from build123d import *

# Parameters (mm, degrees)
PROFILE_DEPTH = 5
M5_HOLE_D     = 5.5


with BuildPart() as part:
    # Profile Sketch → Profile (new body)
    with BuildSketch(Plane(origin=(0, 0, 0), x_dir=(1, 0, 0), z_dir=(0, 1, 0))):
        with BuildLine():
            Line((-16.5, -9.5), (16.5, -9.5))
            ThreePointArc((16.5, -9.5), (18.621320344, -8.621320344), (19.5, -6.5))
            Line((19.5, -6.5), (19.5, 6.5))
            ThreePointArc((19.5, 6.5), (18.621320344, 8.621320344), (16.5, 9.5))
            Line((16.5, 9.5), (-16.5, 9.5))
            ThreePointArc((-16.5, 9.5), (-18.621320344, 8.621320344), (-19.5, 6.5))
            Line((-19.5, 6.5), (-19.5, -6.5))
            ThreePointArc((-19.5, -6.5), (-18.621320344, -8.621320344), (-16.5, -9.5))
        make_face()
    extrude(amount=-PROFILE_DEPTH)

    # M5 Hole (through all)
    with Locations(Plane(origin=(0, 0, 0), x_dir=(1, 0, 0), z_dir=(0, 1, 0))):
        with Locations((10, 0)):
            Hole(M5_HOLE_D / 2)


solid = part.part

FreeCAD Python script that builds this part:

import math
import FreeCAD as App
import Part
import Sketcher

V = App.Vector

doc = App.newDocument("Part")
body = doc.addObject("PartDesign::Body", "Body")

sketch1 = doc.addObject("Sketcher::SketchObject", "Sketch")
body.addObject(sketch1)
sketch1.AttachmentSupport = (doc.XZ_Plane, [""])
sketch1.MapMode = "FlatFace"
sketch1.addGeometry(Part.LineSegment(V(-16.5, 9.5, 0), V(16.5, 9.5, 0)), False)
sketch1.addGeometry(Part.ArcOfCircle(Part.Circle(V(16.5, 6.5, 0), V(0, 0, 1), 3), math.radians(0), math.radians(90)), False)
sketch1.addGeometry(Part.LineSegment(V(19.5, 6.5, 0), V(19.5, -6.5, 0)), False)
sketch1.addGeometry(Part.ArcOfCircle(Part.Circle(V(16.5, -6.5, 0), V(0, 0, 1), 3), math.radians(-90), math.radians(0)), False)
sketch1.addGeometry(Part.LineSegment(V(16.5, -9.5, 0), V(-16.5, -9.5, 0)), False)
sketch1.addGeometry(Part.ArcOfCircle(Part.Circle(V(-16.5, -6.5, 0), V(0, 0, 1), 3), math.radians(180), math.radians(270)), False)
sketch1.addGeometry(Part.LineSegment(V(-19.5, -6.5, 0), V(-19.5, 6.5, 0)), False)
sketch1.addGeometry(Part.ArcOfCircle(Part.Circle(V(-16.5, 6.5, 0), V(0, 0, 1), 3), math.radians(90), math.radians(180)), False)
sketch1.addConstraint(Sketcher.Constraint("Tangent", 0, 2, 1, 2))
sketch1.addConstraint(Sketcher.Constraint("Tangent", 1, 1, 2, 1))
sketch1.addConstraint(Sketcher.Constraint("Tangent", 2, 2, 3, 2))
sketch1.addConstraint(Sketcher.Constraint("Tangent", 3, 1, 4, 1))
sketch1.addConstraint(Sketcher.Constraint("Tangent", 4, 2, 5, 2))
sketch1.addConstraint(Sketcher.Constraint("Tangent", 5, 1, 6, 1))
sketch1.addConstraint(Sketcher.Constraint("Tangent", 6, 2, 7, 2))
sketch1.addConstraint(Sketcher.Constraint("Tangent", 7, 1, 0, 1))
sketch1.addConstraint(Sketcher.Constraint("Horizontal", 0))
sketch1.addConstraint(Sketcher.Constraint("Vertical", 2))
sketch1.addConstraint(Sketcher.Constraint("Horizontal", 4))
sketch1.addConstraint(Sketcher.Constraint("Vertical", 6))
sketch1.addConstraint(Sketcher.Constraint("Equal", 1, 3))
sketch1.addConstraint(Sketcher.Constraint("Equal", 3, 5))
sketch1.addConstraint(Sketcher.Constraint("Equal", 5, 7))
sketch1.addConstraint(Sketcher.Constraint("Symmetric", 1, 3, 5, 3, -1, 1))
sketch1.addConstraint(Sketcher.Constraint("Radius", 1, 3.0))
sketch1.addConstraint(Sketcher.Constraint("DistanceX", 0, 1, 0, 2, 33.0))
sketch1.addConstraint(Sketcher.Constraint("DistanceY", 2, 2, 2, 1, 13.0))
pad1 = doc.addObject("PartDesign::Pad", "Pad")
body.addObject(pad1)
pad1.Profile = sketch1
pad1.Length = 5

sketch2 = doc.addObject("Sketcher::SketchObject", "Sketch001")
body.addObject(sketch2)
sketch2.AttachmentSupport = (doc.XZ_Plane, [""])
sketch2.MapMode = "FlatFace"
sketch2.addGeometry(Part.Circle(V(10, 0, 0), V(0, 0, 1), 2.75), False)
sketch2.addConstraint(Sketcher.Constraint("PointOnObject", 0, 3, -1))
sketch2.addConstraint(Sketcher.Constraint("Diameter", 0, 5.5))
sketch2.addConstraint(Sketcher.Constraint("DistanceX", -1, 1, 0, 3, 10.0))
doc.recompute()
hole = doc.addObject("PartDesign::Hole", "Hole")
body.addObject(hole)
hole.Profile = sketch2
hole.ThreadType = "None"
hole.Diameter = 5.5
hole.DepthType = "ThroughAll"
hole.Reversed = True

doc.recompute()
